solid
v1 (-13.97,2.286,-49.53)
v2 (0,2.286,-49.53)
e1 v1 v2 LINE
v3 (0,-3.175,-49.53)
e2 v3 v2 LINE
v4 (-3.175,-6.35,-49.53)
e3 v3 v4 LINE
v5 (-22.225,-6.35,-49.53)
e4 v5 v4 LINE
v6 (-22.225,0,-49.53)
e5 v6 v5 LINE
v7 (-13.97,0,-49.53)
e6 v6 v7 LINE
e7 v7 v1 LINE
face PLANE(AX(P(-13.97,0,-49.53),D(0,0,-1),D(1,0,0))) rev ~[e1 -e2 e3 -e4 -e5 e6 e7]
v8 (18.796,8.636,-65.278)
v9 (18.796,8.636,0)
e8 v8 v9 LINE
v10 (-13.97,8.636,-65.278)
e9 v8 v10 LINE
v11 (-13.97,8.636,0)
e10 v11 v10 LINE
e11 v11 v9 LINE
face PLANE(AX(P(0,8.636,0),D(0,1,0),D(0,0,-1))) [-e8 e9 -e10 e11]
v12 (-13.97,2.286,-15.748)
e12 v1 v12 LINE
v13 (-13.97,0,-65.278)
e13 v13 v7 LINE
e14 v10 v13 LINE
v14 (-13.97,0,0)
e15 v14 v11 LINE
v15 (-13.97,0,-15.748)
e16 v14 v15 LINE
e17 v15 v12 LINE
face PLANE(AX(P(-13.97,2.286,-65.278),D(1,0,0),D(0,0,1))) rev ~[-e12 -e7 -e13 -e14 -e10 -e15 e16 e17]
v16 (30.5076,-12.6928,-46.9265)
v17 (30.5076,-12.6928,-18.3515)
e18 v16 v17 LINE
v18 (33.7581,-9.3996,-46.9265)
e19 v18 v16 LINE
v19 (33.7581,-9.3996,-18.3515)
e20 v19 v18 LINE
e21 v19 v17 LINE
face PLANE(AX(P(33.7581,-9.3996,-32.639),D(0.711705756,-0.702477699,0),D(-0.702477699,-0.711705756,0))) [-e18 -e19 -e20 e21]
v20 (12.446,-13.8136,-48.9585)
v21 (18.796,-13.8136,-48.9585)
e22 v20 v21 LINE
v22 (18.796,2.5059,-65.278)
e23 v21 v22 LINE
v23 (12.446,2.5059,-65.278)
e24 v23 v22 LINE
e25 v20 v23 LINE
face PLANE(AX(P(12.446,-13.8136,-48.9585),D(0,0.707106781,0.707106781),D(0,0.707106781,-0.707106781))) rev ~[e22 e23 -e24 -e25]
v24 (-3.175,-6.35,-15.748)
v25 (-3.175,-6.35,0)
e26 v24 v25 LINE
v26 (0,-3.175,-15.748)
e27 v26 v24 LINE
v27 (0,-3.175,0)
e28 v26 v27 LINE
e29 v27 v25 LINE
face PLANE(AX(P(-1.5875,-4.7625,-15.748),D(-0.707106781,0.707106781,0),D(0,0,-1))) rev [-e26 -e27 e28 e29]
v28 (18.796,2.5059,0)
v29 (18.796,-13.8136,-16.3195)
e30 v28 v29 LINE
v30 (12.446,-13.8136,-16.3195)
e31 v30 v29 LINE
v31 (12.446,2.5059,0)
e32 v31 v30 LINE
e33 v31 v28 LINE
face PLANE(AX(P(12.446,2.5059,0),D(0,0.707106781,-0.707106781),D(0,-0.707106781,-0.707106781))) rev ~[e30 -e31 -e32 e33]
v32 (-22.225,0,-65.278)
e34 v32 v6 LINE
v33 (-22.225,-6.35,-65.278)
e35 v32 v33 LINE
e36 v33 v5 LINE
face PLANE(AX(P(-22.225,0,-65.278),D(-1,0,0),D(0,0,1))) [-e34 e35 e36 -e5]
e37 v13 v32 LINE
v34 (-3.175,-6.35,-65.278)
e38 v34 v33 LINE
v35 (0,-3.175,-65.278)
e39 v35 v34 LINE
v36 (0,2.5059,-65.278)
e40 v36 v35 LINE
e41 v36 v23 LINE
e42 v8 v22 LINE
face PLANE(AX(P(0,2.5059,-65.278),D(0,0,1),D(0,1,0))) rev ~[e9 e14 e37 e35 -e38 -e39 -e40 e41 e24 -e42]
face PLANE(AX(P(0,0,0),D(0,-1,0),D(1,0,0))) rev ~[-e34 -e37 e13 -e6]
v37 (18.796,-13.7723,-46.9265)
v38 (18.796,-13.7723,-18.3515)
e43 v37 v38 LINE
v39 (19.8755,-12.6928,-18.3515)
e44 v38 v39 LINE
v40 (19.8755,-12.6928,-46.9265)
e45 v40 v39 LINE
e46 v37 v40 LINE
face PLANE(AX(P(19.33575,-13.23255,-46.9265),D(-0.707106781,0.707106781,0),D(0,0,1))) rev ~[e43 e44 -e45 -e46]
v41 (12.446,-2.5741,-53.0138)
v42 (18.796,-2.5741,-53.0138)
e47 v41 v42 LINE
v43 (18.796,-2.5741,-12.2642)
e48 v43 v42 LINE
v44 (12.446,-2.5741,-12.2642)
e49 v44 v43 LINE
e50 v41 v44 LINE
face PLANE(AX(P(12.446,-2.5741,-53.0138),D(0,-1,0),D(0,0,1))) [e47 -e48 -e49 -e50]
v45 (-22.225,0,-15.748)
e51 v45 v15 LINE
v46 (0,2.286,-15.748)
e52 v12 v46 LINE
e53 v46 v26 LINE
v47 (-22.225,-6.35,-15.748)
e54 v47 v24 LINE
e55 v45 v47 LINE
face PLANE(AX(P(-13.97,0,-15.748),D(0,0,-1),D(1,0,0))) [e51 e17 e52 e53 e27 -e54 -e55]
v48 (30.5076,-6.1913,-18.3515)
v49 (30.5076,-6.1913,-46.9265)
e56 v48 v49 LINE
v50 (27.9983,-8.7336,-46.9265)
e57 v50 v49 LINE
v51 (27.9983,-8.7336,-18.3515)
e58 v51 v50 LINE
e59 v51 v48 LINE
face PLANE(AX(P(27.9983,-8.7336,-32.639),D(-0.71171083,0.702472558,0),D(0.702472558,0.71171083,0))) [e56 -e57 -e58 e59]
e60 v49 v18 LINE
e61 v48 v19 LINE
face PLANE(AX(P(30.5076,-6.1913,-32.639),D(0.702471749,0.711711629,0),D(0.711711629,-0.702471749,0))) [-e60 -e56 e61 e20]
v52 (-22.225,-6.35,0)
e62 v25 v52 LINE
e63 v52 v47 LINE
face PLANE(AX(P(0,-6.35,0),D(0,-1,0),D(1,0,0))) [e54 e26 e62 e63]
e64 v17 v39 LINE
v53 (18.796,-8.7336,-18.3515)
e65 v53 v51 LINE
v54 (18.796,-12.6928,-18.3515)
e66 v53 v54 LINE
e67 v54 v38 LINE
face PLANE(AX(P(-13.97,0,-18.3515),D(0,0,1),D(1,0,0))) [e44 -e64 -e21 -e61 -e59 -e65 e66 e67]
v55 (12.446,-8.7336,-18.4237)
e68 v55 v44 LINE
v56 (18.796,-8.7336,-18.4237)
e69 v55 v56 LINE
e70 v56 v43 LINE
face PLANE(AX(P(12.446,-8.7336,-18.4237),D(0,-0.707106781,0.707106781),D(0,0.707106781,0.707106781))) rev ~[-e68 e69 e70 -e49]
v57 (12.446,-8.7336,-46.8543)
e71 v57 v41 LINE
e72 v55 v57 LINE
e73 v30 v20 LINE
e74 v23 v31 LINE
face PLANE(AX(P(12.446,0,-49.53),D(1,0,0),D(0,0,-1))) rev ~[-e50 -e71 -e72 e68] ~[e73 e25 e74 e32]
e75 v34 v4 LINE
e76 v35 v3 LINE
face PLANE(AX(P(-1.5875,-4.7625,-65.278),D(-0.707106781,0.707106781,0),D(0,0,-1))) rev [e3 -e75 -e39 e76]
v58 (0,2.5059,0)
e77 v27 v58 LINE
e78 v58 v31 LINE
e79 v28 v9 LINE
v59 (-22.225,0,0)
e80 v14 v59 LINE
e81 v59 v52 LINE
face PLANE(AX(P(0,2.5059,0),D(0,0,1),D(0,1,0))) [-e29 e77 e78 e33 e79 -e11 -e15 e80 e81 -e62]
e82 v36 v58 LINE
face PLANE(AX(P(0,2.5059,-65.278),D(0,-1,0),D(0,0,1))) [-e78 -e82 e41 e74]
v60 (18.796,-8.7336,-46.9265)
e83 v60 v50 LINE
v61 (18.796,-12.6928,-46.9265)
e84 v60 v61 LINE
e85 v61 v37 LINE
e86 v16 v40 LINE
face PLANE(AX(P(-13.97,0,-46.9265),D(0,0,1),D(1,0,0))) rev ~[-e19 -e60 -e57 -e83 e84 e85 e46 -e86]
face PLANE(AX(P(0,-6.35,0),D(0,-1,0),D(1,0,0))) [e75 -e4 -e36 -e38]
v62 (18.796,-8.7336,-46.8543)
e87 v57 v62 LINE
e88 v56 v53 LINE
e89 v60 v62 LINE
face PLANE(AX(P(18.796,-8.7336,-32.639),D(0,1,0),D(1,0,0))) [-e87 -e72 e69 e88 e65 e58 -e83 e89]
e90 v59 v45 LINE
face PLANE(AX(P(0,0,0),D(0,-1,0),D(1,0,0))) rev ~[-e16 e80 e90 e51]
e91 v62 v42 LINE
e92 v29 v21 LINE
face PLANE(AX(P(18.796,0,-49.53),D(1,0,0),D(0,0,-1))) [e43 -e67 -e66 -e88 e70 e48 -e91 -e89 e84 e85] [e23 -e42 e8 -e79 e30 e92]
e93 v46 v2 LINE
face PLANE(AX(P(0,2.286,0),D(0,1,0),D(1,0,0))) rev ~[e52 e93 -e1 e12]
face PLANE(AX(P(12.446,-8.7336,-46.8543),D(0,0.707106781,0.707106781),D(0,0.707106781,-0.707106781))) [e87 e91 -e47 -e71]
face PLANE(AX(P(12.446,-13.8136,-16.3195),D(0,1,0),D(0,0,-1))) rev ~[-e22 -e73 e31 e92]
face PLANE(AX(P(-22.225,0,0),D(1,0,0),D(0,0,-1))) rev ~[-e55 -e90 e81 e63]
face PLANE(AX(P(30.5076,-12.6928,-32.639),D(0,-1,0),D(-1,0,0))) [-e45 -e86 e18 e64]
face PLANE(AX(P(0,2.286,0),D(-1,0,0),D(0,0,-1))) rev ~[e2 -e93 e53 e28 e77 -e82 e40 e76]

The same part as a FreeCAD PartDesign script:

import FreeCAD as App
import Part
import Sketcher
from FreeCAD import Vector
Q = App.Units.Quantity


def edges_at(feature, points):
    """Names of the edges that pass closest to the given points."""
    edges = feature.Shape.Edges
    near = lambda p: min(range(len(edges)), key=lambda i: edges[i].distToShape(Part.Vertex(*p))[0])
    return sorted({f"Edge{near(p) + 1}" for p in points})


def add_polygon(sketch, points):
    """Adds a closed chain of lines whose ends are joined by coincident constraints."""
    first, n = sketch.GeometryCount, len(points)
    for a, b in zip(points, points[1:] + points[:1]):
        sketch.addGeometry(Part.LineSegment(App.Vector(*a, 0), App.Vector(*b, 0)), False)
    for i in range(n):
        sketch.addConstraint(Sketcher.Constraint("Coincident", first + i, 2, first + (i + 1) % n, 1))

doc = App.newDocument("Part")
body = doc.addObject("PartDesign::Body", "Body")
body.AllowCompound = True

# Sketch on XZ plane
sketch1 = body.newObject("Sketcher::SketchObject", "Sketch")
sketch1.AttachmentSupport = (doc.getObject("XZ_Plane"), [""])
sketch1.MapMode = "FlatFace"
add_polygon(sketch1, [(-14, 0), (0, 0), (0, -16), (-14, -16)])  # lines 0-3
add_polygon(sketch1, [(-14, -65), (-14, -50), (0, -50), (0, -65)])  # lines 4-7
sketch1.addConstraint([
    Sketcher.Constraint("Horizontal", 0),
    Sketcher.Constraint("Vertical", 1),
    Sketcher.Constraint("Horizontal", 2),
    Sketcher.Constraint("Vertical", 3),
    Sketcher.Constraint("Vertical", 4),
    Sketcher.Constraint("Horizontal", 5),
    Sketcher.Constraint("Vertical", 6),
    Sketcher.Constraint("Horizontal", 7),
    Sketcher.Constraint("Coincident", 0, 2, -1, 1),
    Sketcher.Constraint("PointOnObject", 5, 2, -2),
    Sketcher.Constraint("Vertical", 3, 2, 4, 2),
    Sketcher.Constraint("Equal", 3, 4),
    Sketcher.Constraint("DistanceX", 0, 1, 0, 2, Q("0.55 in")),
    Sketcher.Constraint("DistanceY", 1, 2, 1, 1, Q("0.62 in")),
    Sketcher.Constraint("DistanceY", 4, 2, 2, 2, Q("1.33 in")),
])
pad1 = body.newObject("PartDesign::Pad", "Pad")
pad1.Profile = sketch1
pad1.Length = Q("0.09 in")
pad1.Reversed = True

# Sketch on XZ plane
sketch2 = body.newObject("Sketcher::SketchObject", "Sketch001")
sketch2.AttachmentSupport = (doc.getObject("XZ_Plane"), [""])
sketch2.MapMode = "FlatFace"
sketch2.AttachmentOffset = App.Placement(Vector(0, 0, -0.09 * 25.4), App.Rotation())
add_polygon(sketch2, [(-14, -65), (-14, 0), (0, 0), (0, -65)])  # lines 0-3
sketch2.addConstraint([
    Sketcher.Constraint("Vertical", 0),
    Sketcher.Constraint("Horizontal", 1),
    Sketcher.Constraint("Vertical", 2),
    Sketcher.Constraint("Horizontal", 3),
    Sketcher.Constraint("Coincident", 1, 2, -1, 1),
    Sketcher.Constraint("DistanceX", 1, 1, 1, 2, Q("0.55 in")),
    Sketcher.Constraint("DistanceY", 0, 1, 0, 2, Q("2.57 in")),
])
pad2 = body.newObject("PartDesign::Pad", "Pad001")
pad2.Profile = sketch2
pad2.Length = Q("0.25 in")
pad2.Reversed = True

# Sketch on YZ plane
sketch3 = body.newObject("Sketcher::SketchObject", "Sketch002")
sketch3.AttachmentSupport = (doc.getObject("YZ_Plane"), [""])
sketch3.MapMode = "FlatFace"
add_polygon(sketch3, [(9, -65), (9, 0), (3, 0), (3, -65)])  # lines 0-3
sketch3.addConstraint([
    Sketcher.Constraint("Vertical", 0),
    Sketcher.Constraint("Horizontal", 1),
    Sketcher.Constraint("Vertical", 2),
    Sketcher.Constraint("Horizontal", 3),
    Sketcher.Constraint("PointOnObject", 0, 2, -1),
    Sketcher.Constraint("DistanceY", 0, 1, 0, 2, Q("2.57 in")),
    Sketcher.Constraint("DistanceX", -1, 1, 0, 2, Q("0.34 in")),
    Sketcher.Constraint("DistanceX", 1, 2, 1, 1, 6.13),
])
pad3 = body.newObject("PartDesign::Pad", "Pad002")
pad3.Profile = sketch3
pad3.Length = Q("0.49 in")

# Sketch on YZ plane
sketch4 = body.newObject("Sketcher::SketchObject", "Sketch003")
sketch4.AttachmentSupport = (doc.getObject("YZ_Plane"), [""])
sketch4.MapMode = "FlatFace"
sketch4.AttachmentOffset = App.Placement(Vector(0, 0, 0.49 * 25.4), App.Rotation())
add_polygon(sketch4, [(3, -65), (9, -65), (9, 0), (3, 0), (-14, -16), (-14, -49)])  # lines 0-5
add_polygon(sketch4, [(-9, -18), (-3, -12), (-3, -53), (-9, -47)])  # lines 6-9
sketch4.addConstraint([
    Sketcher.Constraint("Horizontal", 0),
    Sketcher.Constraint("Vertical", 1),
    Sketcher.Constraint("Horizontal", 2),
    Sketcher.Constraint("Vertical", 4),
    Sketcher.Constraint("Vertical", 7),
    Sketcher.Constraint("Vertical", 9),
    Sketcher.Constraint("PointOnObject", 1, 2, -1),
    Sketcher.Constraint("Perpendicular", 3, 5),
    Sketcher.Constraint("Perpendicular", 5, 6),
    Sketcher.Constraint("Perpendicular", 6, 8),
    Sketcher.Constraint("Vertical", 2, 2, 5, 2),
    Sketcher.Constraint("Equal", 3, 5),
    Sketcher.Constraint("DistanceX", 6, 2, 2, 2, Q("0.2 in")),
    Sketcher.Constraint("DistanceX", 4, 2, 8, 2, Q("0.2 in")),
    Sketcher.Constraint("DistanceY", 1, 1, 1, 2, Q("2.57 in")),
    Sketcher.Constraint("DistanceY", 4, 2, 4, 1, Q("1.285 in")),
    Sketcher.Constraint("DistanceX", -1, 1, 0, 2, Q("0.34 in")),
    Sketcher.Constraint("DistanceX", 0, 1, 0, 2, 6.13),
    Sketcher.Constraint("DistanceY", 7, 2, 7, 1, 40.7496),
    Sketcher.Constraint("DistanceY", 6, 2, -1, 1, 12.2642),
])
pad4 = body.newObject("PartDesign::Pad", "Pad003")
pad4.Profile = sketch4
pad4.Length = Q("0.25 in")

# Sketch on XY plane
sketch5 = body.newObject("Sketcher::SketchObject", "Sketch004")
sketch5.AttachmentSupport = (doc.getObject("XY_Plane"), [""])
sketch5.MapMode = "FlatFace"
sketch5.AttachmentOffset = App.Placement(Vector(0, 0, -1.285 * 25.4), App.Rotation())
add_polygon(sketch5, [(28, -8.7), (18.8, -8.7), (18.8, -12.7), (30.5, -12.7), (33.8, -9.4), (30.5, -6.2)])  # lines 0-5
sketch5.addConstraint([
    Sketcher.Constraint("Horizontal", 0),
    Sketcher.Constraint("Vertical", 1),
    Sketcher.Constraint("Horizontal", 2),
    Sketcher.Constraint("Perpendicular", 3, 4),
    Sketcher.Constraint("Perpendicular", 4, 5),
    Sketcher.Constraint("Vertical", 2, 2, 4, 2),
    Sketcher.Constraint("DistanceX", -1, 1, 0, 2, Q("0.74 in")),
    Sketcher.Constraint("Distance", 5, Q("0.1406299 in")),
    Sketcher.Constraint("DistanceX", 0, 2, 0, 1, Q("0.3623 in")),
    Sketcher.Constraint("Distance", 4, Q("0.1798 in")),
    Sketcher.Constraint("DistanceX", 2, 1, 2, 2, 11.7116),
    Sketcher.Constraint("DistanceY", 0, 2, -1, 1, 8.7336),
])
pad5 = body.newObject("PartDesign::Pad", "Pad004")
pad5.Profile = sketch5
pad5.Length = Q("1.125 in")
pad5.Midplane = True

# Sketch on XZ plane
sketch6 = body.newObject("Sketcher::SketchObject", "Sketch005")
sketch6.AttachmentSupport = (doc.getObject("XZ_Plane"), [""])
sketch6.MapMode = "FlatFace"
add_polygon(sketch6, [(-22, -65), (0, -65), (0, -50), (-22, -50)])  # lines 0-3
add_polygon(sketch6, [(-22, -16), (0, -16), (0, 0), (-22, 0)])  # lines 4-7
sketch6.addConstraint([
    Sketcher.Constraint("Horizontal", 0),
    Sketcher.Constraint("Vertical", 1),
    Sketcher.Constraint("Horizontal", 2),
    Sketcher.Constraint("Vertical", 3),
    Sketcher.Constraint("Horizontal", 4),
    Sketcher.Constraint("Vertical", 5),
    Sketcher.Constraint("Horizontal", 6),
    Sketcher.Constraint("Vertical", 7),
    Sketcher.Constraint("Coincident", 5, 2, -1, 1),
    Sketcher.Constraint("PointOnObject", 0, 2, -2),
    Sketcher.Constraint("Vertical", 3, 2, 6, 2),
    Sketcher.Constraint("Equal", 3, 5),
    Sketcher.Constraint("DistanceX", 0, 1, 0, 2, Q("0.875 in")),
    Sketcher.Constraint("DistanceY", 1, 1, 1, 2, Q("0.62 in")),
    Sketcher.Constraint("DistanceY", 0, 2, -1, 1, Q("2.57 in")),
])
pad6 = body.newObject("PartDesign::Pad", "Pad005")
pad6.Profile = sketch6
pad6.Length = Q("0.25 in")
doc.recompute()

chamfer = body.newObject("PartDesign::Chamfer", "Chamfer")
chamfer.Base = (pad6, edges_at(pad6, [(0, -6.35, -7.874), (0, -6.35, -57.404)]))
chamfer.Size = Q("0.125 in")
doc.recompute()

chamfer2 = body.newObject("PartDesign::Chamfer", "Chamfer001")
chamfer2.Base = (chamfer, edges_at(chamfer, [(18.796, -12.693, -32.639)]))
chamfer2.Size = Q("0.0425 in")

doc.recompute()
